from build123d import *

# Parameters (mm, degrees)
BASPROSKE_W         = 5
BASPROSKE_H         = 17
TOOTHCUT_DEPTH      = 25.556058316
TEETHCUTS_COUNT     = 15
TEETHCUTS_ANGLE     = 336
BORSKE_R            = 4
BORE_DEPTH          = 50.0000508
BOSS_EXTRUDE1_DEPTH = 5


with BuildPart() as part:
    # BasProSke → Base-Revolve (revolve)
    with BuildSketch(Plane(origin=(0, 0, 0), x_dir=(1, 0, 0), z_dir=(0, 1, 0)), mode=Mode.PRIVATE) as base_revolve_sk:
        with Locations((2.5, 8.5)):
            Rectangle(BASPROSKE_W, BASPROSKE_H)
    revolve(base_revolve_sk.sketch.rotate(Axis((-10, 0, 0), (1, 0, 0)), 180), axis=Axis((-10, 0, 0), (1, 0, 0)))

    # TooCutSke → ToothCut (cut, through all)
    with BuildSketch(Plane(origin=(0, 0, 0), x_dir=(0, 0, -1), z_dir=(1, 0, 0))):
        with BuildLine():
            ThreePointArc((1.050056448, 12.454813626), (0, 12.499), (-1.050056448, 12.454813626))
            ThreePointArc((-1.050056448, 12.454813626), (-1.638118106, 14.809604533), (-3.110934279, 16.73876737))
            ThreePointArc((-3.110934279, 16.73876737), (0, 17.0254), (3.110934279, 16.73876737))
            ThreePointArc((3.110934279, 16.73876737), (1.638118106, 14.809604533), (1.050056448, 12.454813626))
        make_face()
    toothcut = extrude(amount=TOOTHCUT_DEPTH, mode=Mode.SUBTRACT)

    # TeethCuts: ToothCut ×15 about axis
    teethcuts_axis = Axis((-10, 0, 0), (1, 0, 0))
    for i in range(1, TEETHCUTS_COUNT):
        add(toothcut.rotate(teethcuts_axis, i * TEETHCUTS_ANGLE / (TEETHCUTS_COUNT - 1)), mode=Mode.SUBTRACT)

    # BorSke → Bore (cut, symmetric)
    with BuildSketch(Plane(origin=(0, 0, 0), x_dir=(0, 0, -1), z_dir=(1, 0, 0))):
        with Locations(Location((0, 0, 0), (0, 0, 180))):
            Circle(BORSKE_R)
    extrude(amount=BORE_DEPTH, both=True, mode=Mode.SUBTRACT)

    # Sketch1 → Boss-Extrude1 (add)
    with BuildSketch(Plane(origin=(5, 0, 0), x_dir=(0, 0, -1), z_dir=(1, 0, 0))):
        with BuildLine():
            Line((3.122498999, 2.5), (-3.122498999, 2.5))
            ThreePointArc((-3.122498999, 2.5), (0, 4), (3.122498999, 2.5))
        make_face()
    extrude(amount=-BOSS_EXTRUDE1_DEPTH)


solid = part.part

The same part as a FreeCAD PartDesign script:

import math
import FreeCAD as App
import Part
import Sketcher

V = App.Vector
Q = App.Units.Quantity

doc = App.newDocument("Part")
params = doc.addObject("Spreadsheet::Sheet", "Params")
for row, (alias, value) in enumerate([
    ("sketch1_width", "5 mm"),
    ("sketch1_height", "17 mm"),
    ("revolution_angle", "360 deg"),
    ("sketch2_radius", "6 mm"),
    ("sketch3_diameter", "8 mm"),
    ("pocket2_length", "100.000102 mm"),
    ("sketch4_radius", "4 mm"),
    ("pad1_length", "5 mm"),
], start=1):
    params.set(f"A{row}", alias)
    params.set(f"B{row}", "=" + value)
    params.setAlias(f"B{row}", alias)

body = doc.addObject("PartDesign::Body", "Body")

sketch1 = doc.addObject("Sketcher::SketchObject", "Sketch")
body.addObject(sketch1)
sketch1.AttachmentSupport = (doc.XZ_Plane, [""])
sketch1.MapMode = "FlatFace"
sketch1.addGeometry(Part.LineSegment(V(0, -17, 0), V(0, 0, 0)), False)
sketch1.addGeometry(Part.LineSegment(V(0, 0, 0), V(5, 0, 0)), False)
sketch1.addGeometry(Part.LineSegment(V(5, 0, 0), V(5, -17, 0)), False)
sketch1.addGeometry(Part.LineSegment(V(5, -17, 0), V(0, -17, 0)), False)
sketch1.addConstraint(Sketcher.Constraint("Coincident", 0, 2, 1, 1))
sketch1.addConstraint(Sketcher.Constraint("Coincident", 1, 2, 2, 1))
sketch1.addConstraint(Sketcher.Constraint("Coincident", 2, 2, 3, 1))
sketch1.addConstraint(Sketcher.Constraint("Coincident", 3, 2, 0, 1))
sketch1.addConstraint(Sketcher.Constraint("Vertical", 0))
sketch1.addConstraint(Sketcher.Constraint("Horizontal", 1))
sketch1.addConstraint(Sketcher.Constraint("Vertical", 2))
sketch1.addConstraint(Sketcher.Constraint("Horizontal", 3))
sketch1.addConstraint(Sketcher.Constraint("Coincident", 0, 2, -1, 1))
sketch1.addConstraint(Sketcher.Constraint("DistanceX", 1, 1, 1, 2, Q("5 mm")))
sketch1.addConstraint(Sketcher.Constraint("DistanceY", 0, 1, 0, 2, Q("17 mm")))
sketch1.setExpression("Constraints[9]", "Params.sketch1_width")
sketch1.setExpression("Constraints[10]", "Params.sketch1_height")
revolution = doc.addObject("PartDesign::Revolution", "Revolution")
body.addObject(revolution)
revolution.Profile = sketch1
revolution.ReferenceAxis = (sketch1, ["H_Axis"])
revolution.setExpression("Angle", "Params.revolution_angle")

sketch2 = doc.addObject("Sketcher::SketchObject", "Sketch001")
body.addObject(sketch2)
sketch2.AttachmentSupport = (doc.YZ_Plane, [""])
sketch2.MapMode = "FlatFace"
sketch2.addGeometry(Part.ArcOfCircle(Part.Circle(V(0, 0, 0), V(0, 0, 1), 12.5), math.radians(-4.82), math.radians(4.82)), False)
sketch2.addGeometry(Part.ArcOfCircle(Part.Circle(V(12.2, -7, 0), V(0, 0, 1), 6), math.radians(41), math.radians(88)), False)
sketch2.addGeometry(Part.ArcOfCircle(Part.Circle(V(0, 0, 0), V(0, 0, 1), 17), math.radians(-11), math.radians(11)), False)
sketch2.addGeometry(Part.ArcOfCircle(Part.Circle(V(12.2, 7, 0), V(0, 0, 1), 6), math.radians(-88), math.radians(-41)), False)
sketch2.addConstraint(Sketcher.Constraint("Coincident", 0, 1, 1, 2))
sketch2.addConstraint(Sketcher.Constraint("Coincident", 1, 1, 2, 1))
sketch2.addConstraint(Sketcher.Constraint("Coincident", 2, 2, 3, 2))
sketch2.addConstraint(Sketcher.Constraint("Coincident", 3, 1, 0, 2))
sketch2.addConstraint(Sketcher.Constraint("Coincident", 0, 3, -1, 1))
sketch2.addConstraint(Sketcher.Constraint("Coincident", 2, 3, -1, 1))
sketch2.addConstraint(Sketcher.Constraint("Equal", 1, 3))
sketch2.addConstraint(Sketcher.Constraint("Symmetric", 1, 3, 3, 3, -1))
sketch2.addConstraint(Sketcher.Constraint("Radius", 1, Q("6 mm")))
sketch2.addConstraint(Sketcher.Constraint("Radius", 0, Q("12.499 mm")))
sketch2.addConstraint(Sketcher.Constraint("Radius", 2, Q("17.0254 mm")))
sketch2.addConstraint(Sketcher.Constraint("DistanceY", 1, 3, 3, 3, Q("14.089999 mm")))
sketch2.addConstraint(Sketcher.Constraint("DistanceX", -1, 1, 1, 3, Q("12.208521 mm")))
sketch2.setExpression("Constraints[8]", "Params.sketch2_radius")
pocket1 = doc.addObject("PartDesign::Pocket", "Pocket")
body.addObject(pocket1)
pocket1.Profile = sketch2
pocket1.Type = "ThroughAll"
pocket1.Reversed = True
doc.recompute()

polarpattern = doc.addObject("PartDesign::PolarPattern", "PolarPattern")
body.addObject(polarpattern)
polarpattern.Originals = [pocket1]
polarpattern.Axis = (doc.X_Axis, [""])
polarpattern.Angle = 360
polarpattern.Occurrences = 15
body.Tip = polarpattern

sketch3 = doc.addObject("Sketcher::SketchObject", "Sketch002")
body.addObject(sketch3)
sketch3.AttachmentSupport = (doc.YZ_Plane, [""])
sketch3.MapMode = "FlatFace"
sketch3.addGeometry(Part.Circle(V(0, 0, 0), V(0, 0, 1), 4), False)
sketch3.addConstraint(Sketcher.Constraint("Coincident", 0, 3, -1, 1))
sketch3.addConstraint(Sketcher.Constraint("Diameter", 0, Q("8 mm")))
sketch3.setExpression("Constraints[1]", "Params.sketch3_diameter")
pocket2 = doc.addObject("PartDesign::Pocket", "Pocket001")
body.addObject(pocket2)
pocket2.Profile = sketch3
pocket2.setExpression("Length", "Params.pocket2_length")
pocket2.Midplane = True

sketch4 = doc.addObject("Sketcher::SketchObject", "Sketch003")
body.addObject(sketch4)
sketch4.AttachmentSupport = (doc.YZ_Plane, [""])
sketch4.MapMode = "FlatFace"
sketch4.AttachmentOffset = App.Placement(V(0, 0, 5), App.Rotation())
sketch4.addGeometry(Part.LineSegment(V(2.5, 3.1, 0), V(2.5, -3.1, 0)), False)
sketch4.addGeometry(Part.ArcOfCircle(Part.Circle(V(0, 0, 0), V(0, 0, 1), 4), math.radians(-51), math.radians(51)), False)
sketch4.addConstraint(Sketcher.Constraint("Coincident", 0, 1, 1, 2))
sketch4.addConstraint(Sketcher.Constraint("Coincident", 1, 1, 0, 2))
sketch4.addConstraint(Sketcher.Constraint("Vertical", 0))
sketch4.addConstraint(Sketcher.Constraint("Coincident", 1, 3, -1, 1))
sketch4.addConstraint(Sketcher.Constraint("Radius", 1, Q("4 mm")))
sketch4.addConstraint(Sketcher.Constraint("DistanceX", -1, 1, 0, 1, Q("2.5 mm")))
sketch4.setExpression("Constraints[4]", "Params.sketch4_radius")
pad1 = doc.addObject("PartDesign::Pad", "Pad")
body.addObject(pad1)
pad1.Profile = sketch4
pad1.setExpression("Length", "Params.pad1_length")
pad1.Reversed = True

doc.recompute()
